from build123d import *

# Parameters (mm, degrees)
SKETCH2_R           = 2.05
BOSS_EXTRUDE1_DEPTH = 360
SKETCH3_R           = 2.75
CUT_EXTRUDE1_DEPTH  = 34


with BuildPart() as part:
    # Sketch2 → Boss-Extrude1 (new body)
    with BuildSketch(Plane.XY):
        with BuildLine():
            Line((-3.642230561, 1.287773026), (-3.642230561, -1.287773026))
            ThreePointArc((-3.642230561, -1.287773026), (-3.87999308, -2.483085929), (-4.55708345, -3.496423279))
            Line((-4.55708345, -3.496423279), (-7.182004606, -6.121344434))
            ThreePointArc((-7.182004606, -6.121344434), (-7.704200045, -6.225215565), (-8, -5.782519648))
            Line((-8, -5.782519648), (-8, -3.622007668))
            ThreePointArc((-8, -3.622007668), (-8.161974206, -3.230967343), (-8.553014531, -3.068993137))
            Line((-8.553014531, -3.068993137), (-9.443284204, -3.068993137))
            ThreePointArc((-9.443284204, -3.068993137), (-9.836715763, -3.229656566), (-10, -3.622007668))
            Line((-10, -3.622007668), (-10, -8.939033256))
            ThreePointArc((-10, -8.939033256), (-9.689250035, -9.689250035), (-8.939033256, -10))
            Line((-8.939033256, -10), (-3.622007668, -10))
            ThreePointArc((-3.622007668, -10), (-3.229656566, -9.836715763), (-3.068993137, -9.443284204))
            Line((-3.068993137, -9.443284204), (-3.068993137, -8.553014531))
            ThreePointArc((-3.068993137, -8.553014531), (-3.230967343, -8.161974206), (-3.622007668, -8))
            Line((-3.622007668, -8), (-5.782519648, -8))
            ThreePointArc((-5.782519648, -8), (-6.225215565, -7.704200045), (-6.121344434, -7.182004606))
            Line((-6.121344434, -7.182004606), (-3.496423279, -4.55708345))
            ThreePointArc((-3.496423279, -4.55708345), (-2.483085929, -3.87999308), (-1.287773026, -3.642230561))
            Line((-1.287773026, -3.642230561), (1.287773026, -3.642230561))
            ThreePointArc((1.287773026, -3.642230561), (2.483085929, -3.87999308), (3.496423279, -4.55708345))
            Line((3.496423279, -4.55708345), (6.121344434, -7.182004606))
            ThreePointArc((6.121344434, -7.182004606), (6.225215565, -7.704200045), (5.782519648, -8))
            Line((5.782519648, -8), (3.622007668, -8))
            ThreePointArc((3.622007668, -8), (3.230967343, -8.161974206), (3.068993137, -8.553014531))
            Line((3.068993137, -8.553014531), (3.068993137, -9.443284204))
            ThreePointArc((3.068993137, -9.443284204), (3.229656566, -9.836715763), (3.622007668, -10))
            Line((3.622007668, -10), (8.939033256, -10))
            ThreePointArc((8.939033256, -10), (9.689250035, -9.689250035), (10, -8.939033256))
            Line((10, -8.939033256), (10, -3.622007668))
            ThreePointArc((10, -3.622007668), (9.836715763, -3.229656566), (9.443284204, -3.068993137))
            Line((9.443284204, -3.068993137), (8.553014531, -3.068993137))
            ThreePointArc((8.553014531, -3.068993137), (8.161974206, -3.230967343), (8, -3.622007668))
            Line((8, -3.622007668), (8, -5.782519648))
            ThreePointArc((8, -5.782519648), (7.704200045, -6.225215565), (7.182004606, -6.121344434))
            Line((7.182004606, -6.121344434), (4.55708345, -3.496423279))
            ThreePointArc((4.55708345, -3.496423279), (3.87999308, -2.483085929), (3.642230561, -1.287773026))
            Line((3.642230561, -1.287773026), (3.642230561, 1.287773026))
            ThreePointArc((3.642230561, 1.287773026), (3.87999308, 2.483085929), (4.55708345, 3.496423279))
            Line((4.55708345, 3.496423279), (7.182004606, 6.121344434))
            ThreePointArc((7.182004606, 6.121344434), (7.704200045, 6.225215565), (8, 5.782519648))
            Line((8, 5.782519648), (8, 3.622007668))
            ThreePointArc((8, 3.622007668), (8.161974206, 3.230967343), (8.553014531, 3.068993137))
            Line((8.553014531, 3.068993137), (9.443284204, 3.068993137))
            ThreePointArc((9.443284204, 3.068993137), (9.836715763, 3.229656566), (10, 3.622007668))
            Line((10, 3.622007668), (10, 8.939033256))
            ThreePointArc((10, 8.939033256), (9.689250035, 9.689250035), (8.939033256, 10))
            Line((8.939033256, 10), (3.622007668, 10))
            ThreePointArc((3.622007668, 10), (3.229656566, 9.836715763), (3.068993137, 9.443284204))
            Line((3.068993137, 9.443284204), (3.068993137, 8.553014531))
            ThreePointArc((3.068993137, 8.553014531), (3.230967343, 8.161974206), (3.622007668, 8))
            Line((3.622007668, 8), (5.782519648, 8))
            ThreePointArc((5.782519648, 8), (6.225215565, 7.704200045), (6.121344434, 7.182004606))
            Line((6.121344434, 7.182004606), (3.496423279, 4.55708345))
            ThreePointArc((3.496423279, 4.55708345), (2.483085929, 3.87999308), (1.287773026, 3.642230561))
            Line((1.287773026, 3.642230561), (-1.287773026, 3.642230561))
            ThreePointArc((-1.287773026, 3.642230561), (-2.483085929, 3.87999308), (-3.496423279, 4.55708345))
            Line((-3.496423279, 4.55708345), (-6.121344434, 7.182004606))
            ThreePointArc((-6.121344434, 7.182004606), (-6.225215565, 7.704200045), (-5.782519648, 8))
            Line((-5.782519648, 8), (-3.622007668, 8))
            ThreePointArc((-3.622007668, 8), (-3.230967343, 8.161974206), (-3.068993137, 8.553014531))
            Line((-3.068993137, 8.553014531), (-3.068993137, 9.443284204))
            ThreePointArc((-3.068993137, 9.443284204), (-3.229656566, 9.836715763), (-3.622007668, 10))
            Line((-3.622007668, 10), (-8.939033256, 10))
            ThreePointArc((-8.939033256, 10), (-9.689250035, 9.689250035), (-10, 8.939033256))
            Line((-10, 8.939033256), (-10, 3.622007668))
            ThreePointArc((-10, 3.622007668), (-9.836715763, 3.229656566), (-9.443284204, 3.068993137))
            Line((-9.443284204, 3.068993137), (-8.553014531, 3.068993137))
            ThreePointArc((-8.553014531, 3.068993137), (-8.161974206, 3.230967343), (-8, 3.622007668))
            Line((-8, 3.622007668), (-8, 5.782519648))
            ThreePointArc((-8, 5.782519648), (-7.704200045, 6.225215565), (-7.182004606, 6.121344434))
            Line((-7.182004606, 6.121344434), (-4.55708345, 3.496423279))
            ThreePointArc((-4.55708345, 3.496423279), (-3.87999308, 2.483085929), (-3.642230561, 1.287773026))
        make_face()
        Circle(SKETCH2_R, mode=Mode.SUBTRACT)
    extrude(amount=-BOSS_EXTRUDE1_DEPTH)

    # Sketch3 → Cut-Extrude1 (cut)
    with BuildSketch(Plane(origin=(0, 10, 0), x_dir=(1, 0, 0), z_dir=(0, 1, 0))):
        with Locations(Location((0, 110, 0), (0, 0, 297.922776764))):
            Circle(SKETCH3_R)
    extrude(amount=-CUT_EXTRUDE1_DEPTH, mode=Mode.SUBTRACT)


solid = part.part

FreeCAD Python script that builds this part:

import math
import FreeCAD as App
import Part
import Sketcher

V = App.Vector
Q = App.Units.Quantity

doc = App.newDocument("Part")
body = doc.addObject("PartDesign::Body", "Body")

sketch1 = body.newObject("Sketcher::SketchObject", "Sketch")
sketch1.AttachmentSupport = (doc.getObject("XY_Plane"), [""])
sketch1.MapMode = "FlatFace"
sketch1.addGeometry([
    Part.LineSegment(V(-3.642231, 1.287773, 0), V(-3.642231, -1.287773, 0)),
    Part.ArcOfCircle(Part.Circle(V(-6.765734, -1.287773, 0), V(0, 0, 1), 3.123503), math.radians(-45), math.radians(0)),
    Part.LineSegment(V(-4.557083, -3.496423, 0), V(-7.182005, -6.121344, 0)),
    Part.ArcOfCircle(Part.Circle(V(-7.520829, -5.78252, 0), V(0, 0, 1), 0.479171), math.radians(180), math.radians(315)),
    Part.LineSegment(V(-8, -5.78252, 0), V(-8, -3.622008, 0)),
    Part.ArcOfCircle(Part.Circle(V(-8.553015, -3.622008, 0), V(0, 0, 1), 0.553015), math.radians(0), math.radians(90)),
    Part.LineSegment(V(-8.553015, -3.068993, 0), V(-9.443284, -3.068993, 0)),
    Part.ArcOfCircle(Part.Circle(V(-9.446973, -3.622008, 0), V(0, 0, 1), 0.553027), math.radians(89.617806), math.radians(180)),
    Part.LineSegment(V(-10, -3.622008, 0), V(-10, -8.939033, 0)),
    Part.ArcOfCircle(Part.Circle(V(-8.939033, -8.939033, 0), V(0, 0, 1), 1.060967), math.radians(-180), math.radians(-90)),
    Part.LineSegment(V(-8.939033, -10, 0), V(-3.622008, -10, 0)),
    Part.ArcOfCircle(Part.Circle(V(-3.622008, -9.446973, 0), V(0, 0, 1), 0.553027), math.radians(-90), math.radians(0.382194)),
    Part.LineSegment(V(-3.068993, -9.443284, 0), V(-3.068993, -8.553015, 0)),
    Part.ArcOfCircle(Part.Circle(V(-3.622008, -8.553015, 0), V(0, 0, 1), 0.553015), math.radians(0), math.radians(90)),
    Part.LineSegment(V(-3.622008, -8, 0), V(-5.78252, -8, 0)),
    Part.ArcOfCircle(Part.Circle(V(-5.78252, -7.520829, 0), V(0, 0, 1), 0.479171), math.radians(135), math.radians(270)),
    Part.LineSegment(V(-6.121344, -7.182005, 0), V(-3.496423, -4.557083, 0)),
    Part.ArcOfCircle(Part.Circle(V(-1.287773, -6.765734, 0), V(0, 0, 1), 3.123503), math.radians(90), math.radians(135)),
    Part.LineSegment(V(-1.287773, -3.642231, 0), V(1.287773, -3.642231, 0)),
    Part.ArcOfCircle(Part.Circle(V(1.287773, -6.765734, 0), V(0, 0, 1), 3.123503), math.radians(45), math.radians(90)),
    Part.LineSegment(V(3.496423, -4.557083, 0), V(6.121344, -7.182005, 0)),
    Part.ArcOfCircle(Part.Circle(V(5.78252, -7.520829, 0), V(0, 0, 1), 0.479171), math.radians(-90), math.radians(45)),
    Part.LineSegment(V(5.78252, -8, 0), V(3.622008, -8, 0)),
    Part.ArcOfCircle(Part.Circle(V(3.622008, -8.553015, 0), V(0, 0, 1), 0.553015), math.radians(90), math.radians(180)),
    Part.LineSegment(V(3.068993, -8.553015, 0), V(3.068993, -9.443284, 0)),
    Part.ArcOfCircle(Part.Circle(V(3.622008, -9.446973, 0), V(0, 0, 1), 0.553027), math.radians(179.617806), math.radians(270)),
    Part.LineSegment(V(3.622008, -10, 0), V(8.939033, -10, 0)),
    Part.ArcOfCircle(Part.Circle(V(8.939033, -8.939033, 0), V(0, 0, 1), 1.060967), math.radians(-90), math.radians(0)),
    Part.LineSegment(V(10, -8.939033, 0), V(10, -3.622008, 0)),
    Part.ArcOfCircle(Part.Circle(V(9.446973, -3.622008, 0), V(0, 0, 1), 0.553027), math.radians(0), math.radians(90.382194)),
    Part.LineSegment(V(9.443284, -3.068993, 0), V(8.553015, -3.068993, 0)),
    Part.ArcOfCircle(Part.Circle(V(8.553015, -3.622008, 0), V(0, 0, 1), 0.553015), math.radians(90), math.radians(180)),
    Part.LineSegment(V(8, -3.622008, 0), V(8, -5.78252, 0)),
    Part.ArcOfCircle(Part.Circle(V(7.520829, -5.78252, 0), V(0, 0, 1), 0.479171), math.radians(-135), math.radians(0)),
    Part.LineSegment(V(7.182005, -6.121344, 0), V(4.557083, -3.496423, 0)),
    Part.ArcOfCircle(Part.Circle(V(6.765734, -1.287773, 0), V(0, 0, 1), 3.123503), math.radians(180), math.radians(225)),
    Part.LineSegment(V(3.642231, -1.287773, 0), V(3.642231, 1.287773, 0)),
    Part.ArcOfCircle(Part.Circle(V(6.765734, 1.287773, 0), V(0, 0, 1), 3.123503), math.radians(135), math.radians(180)),
    Part.LineSegment(V(4.557083, 3.496423, 0), V(7.182005, 6.121344, 0)),
    Part.ArcOfCircle(Part.Circle(V(7.520829, 5.78252, 0), V(0, 0, 1), 0.479171), math.radians(0), math.radians(135)),
    Part.LineSegment(V(8, 5.78252, 0), V(8, 3.622008, 0)),
    Part.ArcOfCircle(Part.Circle(V(8.553015, 3.622008, 0), V(0, 0, 1), 0.553015), math.radians(180), math.radians(270)),
    Part.LineSegment(V(8.553015, 3.068993, 0), V(9.443284, 3.068993, 0)),
    Part.ArcOfCircle(Part.Circle(V(9.446973, 3.622008, 0), V(0, 0, 1), 0.553027), math.radians(-90.382194), math.radians(0)),
    Part.LineSegment(V(10, 3.622008, 0), V(10, 8.939033, 0)),
    Part.ArcOfCircle(Part.Circle(V(8.939033, 8.939033, 0), V(0, 0, 1), 1.060967), math.radians(0), math.radians(90)),
    Part.LineSegment(V(8.939033, 10, 0), V(3.622008, 10, 0)),
    Part.ArcOfCircle(Part.Circle(V(3.622008, 9.446973, 0), V(0, 0, 1), 0.553027), math.radians(90), math.radians(180.382194)),
    Part.LineSegment(V(3.068993, 9.443284, 0), V(3.068993, 8.553015, 0)),
    Part.ArcOfCircle(Part.Circle(V(3.622008, 8.553015, 0), V(0, 0, 1), 0.553015), math.radians(180), math.radians(270)),
    Part.LineSegment(V(3.622008, 8, 0), V(5.78252, 8, 0)),
    Part.ArcOfCircle(Part.Circle(V(5.78252, 7.520829, 0), V(0, 0, 1), 0.479171), math.radians(-45), math.radians(90)),
    Part.LineSegment(V(6.121344, 7.182005, 0), V(3.496423, 4.557083, 0)),
    Part.ArcOfCircle(Part.Circle(V(1.287773, 6.765734, 0), V(0, 0, 1), 3.123503), math.radians(-90), math.radians(-45)),
    Part.LineSegment(V(1.287773, 3.642231, 0), V(-1.287773, 3.642231, 0)),
    Part.ArcOfCircle(Part.Circle(V(-1.287773, 6.765734, 0), V(0, 0, 1), 3.123503), math.radians(-135), math.radians(-90)),
    Part.LineSegment(V(-3.496423, 4.557083, 0), V(-6.121344, 7.182005, 0)),
    Part.ArcOfCircle(Part.Circle(V(-5.78252, 7.520829, 0), V(0, 0, 1), 0.479171), math.radians(90), math.radians(225)),
    Part.LineSegment(V(-5.78252, 8, 0), V(-3.622008, 8, 0)),
    Part.ArcOfCircle(Part.Circle(V(-3.622008, 8.553015, 0), V(0, 0, 1), 0.553015), math.radians(-90), math.radians(0)),
    Part.LineSegment(V(-3.068993, 8.553015, 0), V(-3.068993, 9.443284, 0)),
    Part.ArcOfCircle(Part.Circle(V(-3.622008, 9.446973, 0), V(0, 0, 1), 0.553027), math.radians(-0.382194), math.radians(90)),
    Part.LineSegment(V(-3.622008, 10, 0), V(-8.939033, 10, 0)),
    Part.ArcOfCircle(Part.Circle(V(-8.939033, 8.939033, 0), V(0, 0, 1), 1.060967), math.radians(90), math.radians(180)),
    Part.LineSegment(V(-10, 8.939033, 0), V(-10, 3.622008, 0)),
    Part.ArcOfCircle(Part.Circle(V(-9.446973, 3.622008, 0), V(0, 0, 1), 0.553027), math.radians(180), math.radians(270.382194)),
    Part.LineSegment(V(-9.443284, 3.068993, 0), V(-8.553015, 3.068993, 0)),
    Part.ArcOfCircle(Part.Circle(V(-8.553015, 3.622008, 0), V(0, 0, 1), 0.553015), math.radians(-90), math.radians(0)),
    Part.LineSegment(V(-8, 3.622008, 0), V(-8, 5.78252, 0)),
    Part.ArcOfCircle(Part.Circle(V(-7.520829, 5.78252, 0), V(0, 0, 1), 0.479171), math.radians(45), math.radians(180)),
    Part.LineSegment(V(-7.182005, 6.121344, 0), V(-4.557083, 3.496423, 0)),
    Part.ArcOfCircle(Part.Circle(V(-6.765734, 1.287773, 0), V(0, 0, 1), 3.123503), math.radians(0), math.radians(45)),
    Part.Circle(V(0, 0, 0), V(0, 0, 1), 2.05),
], False)
sketch1.addConstraint([
    Sketcher.Constraint("Tangent", 0, 2, 1, 2),
    Sketcher.Constraint("Tangent", 1, 1, 2, 1),
    Sketcher.Constraint("Tangent", 2, 2, 3, 2),
    Sketcher.Constraint("Tangent", 3, 1, 4, 1),
    Sketcher.Constraint("Tangent", 4, 2, 5, 1),
    Sketcher.Constraint("Tangent", 5, 2, 6, 1),
    Sketcher.Constraint("Coincident", 6, 2, 7, 1),
    Sketcher.Constraint("Tangent", 7, 2, 8, 1),
    Sketcher.Constraint("Tangent", 8, 2, 9, 1),
    Sketcher.Constraint("Tangent", 9, 2, 10, 1),
    Sketcher.Constraint("Tangent", 10, 2, 11, 1),
    Sketcher.Constraint("Coincident", 11, 2, 12, 1),
    Sketcher.Constraint("Tangent", 12, 2, 13, 1),
    Sketcher.Constraint("Tangent", 13, 2, 14, 1),
    Sketcher.Constraint("Tangent", 14, 2, 15, 2),
    Sketcher.Constraint("Tangent", 15, 1, 16, 1),
    Sketcher.Constraint("Tangent", 16, 2, 17, 2),
    Sketcher.Constraint("Tangent", 17, 1, 18, 1),
    Sketcher.Constraint("Tangent", 18, 2, 19, 2),
    Sketcher.Constraint("Tangent", 19, 1, 20, 1),
    Sketcher.Constraint("Tangent", 20, 2, 21, 2),
    Sketcher.Constraint("Tangent", 21, 1, 22, 1),
    Sketcher.Constraint("Tangent", 22, 2, 23, 1),
    Sketcher.Constraint("Tangent", 23, 2, 24, 1),
    Sketcher.Constraint("Coincident", 24, 2, 25, 1),
    Sketcher.Constraint("Tangent", 25, 2, 26, 1),
    Sketcher.Constraint("Tangent", 26, 2, 27, 1),
    Sketcher.Constraint("Tangent", 27, 2, 28, 1),
    Sketcher.Constraint("Tangent", 28, 2, 29, 1),
    Sketcher.Constraint("Coincident", 29, 2, 30, 1),
    Sketcher.Constraint("Tangent", 30, 2, 31, 1),
    Sketcher.Constraint("Tangent", 31, 2, 32, 1),
    Sketcher.Constraint("Tangent", 32, 2, 33, 2),
    Sketcher.Constraint("Tangent", 33, 1, 34, 1),
    Sketcher.Constraint("Tangent", 34, 2, 35, 2),
    Sketcher.Constraint("Tangent", 35, 1, 36, 1),
    Sketcher.Constraint("Tangent", 36, 2, 37, 2),
    Sketcher.Constraint("Tangent", 37, 1, 38, 1),
    Sketcher.Constraint("Tangent", 38, 2, 39, 2),
    Sketcher.Constraint("Tangent", 39, 1, 40, 1),
    Sketcher.Constraint("Tangent", 40, 2, 41, 1),
    Sketcher.Constraint("Tangent", 41, 2, 42, 1),
    Sketcher.Constraint("Coincident", 42, 2, 43, 1),
    Sketcher.Constraint("Tangent", 43, 2, 44, 1),
    Sketcher.Constraint("Tangent", 44, 2, 45, 1),
    Sketcher.Constraint("Tangent", 45, 2, 46, 1),
    Sketcher.Constraint("Tangent", 46, 2, 47, 1),
    Sketcher.Constraint("Coincident", 47, 2, 48, 1),
    Sketcher.Constraint("Tangent", 48, 2, 49, 1),
    Sketcher.Constraint("Tangent", 49, 2, 50, 1),
    Sketcher.Constraint("Tangent", 50, 2, 51, 2),
    Sketcher.Constraint("Tangent", 51, 1, 52, 1),
    Sketcher.Constraint("Tangent", 52, 2, 53, 2),
    Sketcher.Constraint("Tangent", 53, 1, 54, 1),
    Sketcher.Constraint("Tangent", 54, 2, 55, 2),
    Sketcher.Constraint("Tangent", 55, 1, 56, 1),
    Sketcher.Constraint("Tangent", 56, 2, 57, 2),
    Sketcher.Constraint("Tangent", 57, 1, 58, 1),
    Sketcher.Constraint("Tangent", 58, 2, 59, 1),
    Sketcher.Constraint("Tangent", 59, 2, 60, 1),
    Sketcher.Constraint("Coincident", 60, 2, 61, 1),
    Sketcher.Constraint("Tangent", 61, 2, 62, 1),
    Sketcher.Constraint("Tangent", 62, 2, 63, 1),
    Sketcher.Constraint("Tangent", 63, 2, 64, 1),
    Sketcher.Constraint("Tangent", 64, 2, 65, 1),
    Sketcher.Constraint("Coincident", 65, 2, 66, 1),
    Sketcher.Constraint("Tangent", 66, 2, 67, 1),
    Sketcher.Constraint("Tangent", 67, 2, 68, 1),
    Sketcher.Constraint("Tangent", 68, 2, 69, 2),
    Sketcher.Constraint("Tangent", 69, 1, 70, 1),
    Sketcher.Constraint("Tangent", 70, 2, 71, 2),
    Sketcher.Constraint("Tangent", 71, 1, 0, 1),
    Sketcher.Constraint("Vertical", 0),
    Sketcher.Constraint("Vertical", 4),
    Sketcher.Constraint("Horizontal", 6),
    Sketcher.Constraint("Vertical", 8),
    Sketcher.Constraint("Horizontal", 10),
    Sketcher.Constraint("Vertical", 12),
    Sketcher.Constraint("Horizontal", 14),
    Sketcher.Constraint("Horizontal", 18),
    Sketcher.Constraint("Horizontal", 22),
    Sketcher.Constraint("Vertical", 24),
    Sketcher.Constraint("Horizontal", 26),
    Sketcher.Constraint("Vertical", 28),
    Sketcher.Constraint("Horizontal", 30),
    Sketcher.Constraint("Vertical", 32),
    Sketcher.Constraint("Vertical", 36),
    Sketcher.Constraint("Vertical", 40),
    Sketcher.Constraint("Horizontal", 42),
    Sketcher.Constraint("Vertical", 44),
    Sketcher.Constraint("Horizontal", 46),
    Sketcher.Constraint("Vertical", 48),
    Sketcher.Constraint("Horizontal", 50),
    Sketcher.Constraint("Horizontal", 54),
    Sketcher.Constraint("Horizontal", 58),
    Sketcher.Constraint("Vertical", 60),
    Sketcher.Constraint("Horizontal", 62),
    Sketcher.Constraint("Vertical", 64),
    Sketcher.Constraint("Horizontal", 66),
    Sketcher.Constraint("Vertical", 68),
    Sketcher.Constraint("Coincident", 72, 3, -1, 1),
    Sketcher.Constraint("Equal", 7, 11),
    Sketcher.Constraint("Equal", 5, 13),
    Sketcher.Constraint("Equal", 3, 15),
    Sketcher.Constraint("Equal", 1, 17),
    Sketcher.Constraint("Equal", 17, 19),
    Sketcher.Constraint("Equal", 15, 21),
    Sketcher.Constraint("Equal", 13, 23),
    Sketcher.Constraint("Equal", 11, 25),
    Sketcher.Constraint("Equal", 9, 27),
    Sketcher.Constraint("Equal", 25, 29),
    Sketcher.Constraint("Equal", 23, 31),
    Sketcher.Constraint("Equal", 21, 33),
    Sketcher.Constraint("Equal", 19, 35),
    Sketcher.Constraint("Equal", 35, 37),
    Sketcher.Constraint("Equal", 33, 39),
    Sketcher.Constraint("Equal", 31, 41),
    Sketcher.Constraint("Equal", 29, 43),
    Sketcher.Constraint("Equal", 27, 45),
    Sketcher.Constraint("Equal", 43, 47),
    Sketcher.Constraint("Equal", 41, 49),
    Sketcher.Constraint("Equal", 39, 51),
    Sketcher.Constraint("Equal", 37, 53),
    Sketcher.Constraint("Equal", 53, 55),
    Sketcher.Constraint("Equal", 51, 57),
    Sketcher.Constraint("Equal", 49, 59),
    Sketcher.Constraint("Equal", 47, 61),
    Sketcher.Constraint("Equal", 45, 63),
    Sketcher.Constraint("Equal", 61, 65),
    Sketcher.Constraint("Equal", 59, 67),
    Sketcher.Constraint("Equal", 57, 69),
    Sketcher.Constraint("Equal", 55, 71),
    Sketcher.Constraint("Symmetric", 1, 3, 37, 3, -1, 1),
    Sketcher.Constraint("Symmetric", 3, 3, 39, 3, -1, 1),
    Sketcher.Constraint("Symmetric", 7, 3, 43, 3, -1, 1),
    Sketcher.Constraint("Symmetric", 11, 3, 47, 3, -1, 1),
    Sketcher.Constraint("Symmetric", 13, 3, 49, 3, -1, 1),
    Sketcher.Constraint("Symmetric", 17, 3, 53, 3, -1, 1),
    Sketcher.Constraint("Symmetric", 21, 3, 57, 3, -1, 1),
    Sketcher.Constraint("Symmetric", 25, 3, 61, 3, -1, 1),
    Sketcher.Constraint("Symmetric", 29, 3, 65, 3, -1, 1),
    Sketcher.Constraint("Symmetric", 31, 3, 67, 3, -1, 1),
    Sketcher.Constraint("Symmetric", 33, 1, 69, 1, -1, 1),
    Sketcher.Constraint("Symmetric", 15, 3, 21, 3, -2),
    Sketcher.Constraint("Symmetric", 11, 3, 25, 3, -2),
    Sketcher.Constraint("Symmetric", 7, 3, 29, 3, -2),
    Sketcher.Constraint("Symmetric", 5, 3, 31, 3, -2),
    Sketcher.Constraint("Symmetric", 2, 2, 33, 1, -2),
    Sketcher.Constraint("Symmetric", 52, 2, 55, 1, -2),
    Sketcher.Constraint("Parallel", 2, 16),
    Sketcher.Constraint("Perpendicular", 16, 20),
    Sketcher.Constraint("Parallel", 20, 34),
    Sketcher.Constraint("Horizontal", 5, 3, 7, 3),
    Sketcher.Constraint("Horizontal", 41, 3, 43, 3),
    Sketcher.Constraint("Horizontal", 11, 2, 24, 2),
    Sketcher.Constraint("Horizontal", 47, 2, 60, 2),
    Sketcher.Constraint("Equal", 54, 0),
    Sketcher.Constraint("Equal", 58, 4),
    Sketcher.Constraint("Equal", 62, 8),
    Sketcher.Constraint("Equal", 66, 12),
    Sketcher.Constraint("Equal", 2, 16),
    Sketcher.Constraint("Diameter", 72, Q("4.1 mm")),
    Sketcher.Constraint("DistanceX", 3, 1, -1, 1, Q("8 mm")),
    Sketcher.Constraint("DistanceX", 7, 2, -1, 1, Q("10 mm")),
    Sketcher.Constraint("DistanceY", 13, 2, -1, 1, Q("8 mm")),
    Sketcher.Constraint("Radius", 3, Q("0.479171 mm")),
    Sketcher.Constraint("Radius", 1, Q("3.123503 mm")),
    Sketcher.Constraint("Radius", 5, Q("0.553015 mm")),
    Sketcher.Constraint("Radius", 9, Q("1.060967 mm")),
    Sketcher.Constraint("Distance", 2, Q("3.712199 mm")),
    Sketcher.Constraint("DistanceX", 6, 2, 6, 1, Q("0.89027 mm")),
    Sketcher.Constraint("DistanceX", 14, 2, 14, 1, Q("2.160512 mm")),
    Sketcher.Constraint("DistanceX", 10, 1, 10, 2, Q("5.317026 mm")),
])
pad1 = body.newObject("PartDesign::Pad", "Pad")
pad1.Profile = sketch1
pad1.Length = 360
pad1.Reversed = True

sketch2 = body.newObject("Sketcher::SketchObject", "Sketch001")
sketch2.AttachmentSupport = (doc.getObject("XZ_Plane"), [""])
sketch2.MapMode = "FlatFace"
sketch2.AttachmentOffset = App.Placement(V(0, 0, -10), App.Rotation())
sketch2.addGeometry(Part.Circle(V(0, -110, 0), V(0, 0, 1), 2.8), False)
sketch2.addConstraint([
    Sketcher.Constraint("PointOnObject", 0, 3, -2),
    Sketcher.Constraint("Diameter", 0, Q("5.5 mm")),
    Sketcher.Constraint("DistanceY", 0, 3, -1, 1, Q("110 mm")),
])
pocket1 = body.newObject("PartDesign::Pocket", "Pocket")
pocket1.Profile = sketch2
pocket1.Length = 34
pocket1.Reversed = True

doc.recompute()
